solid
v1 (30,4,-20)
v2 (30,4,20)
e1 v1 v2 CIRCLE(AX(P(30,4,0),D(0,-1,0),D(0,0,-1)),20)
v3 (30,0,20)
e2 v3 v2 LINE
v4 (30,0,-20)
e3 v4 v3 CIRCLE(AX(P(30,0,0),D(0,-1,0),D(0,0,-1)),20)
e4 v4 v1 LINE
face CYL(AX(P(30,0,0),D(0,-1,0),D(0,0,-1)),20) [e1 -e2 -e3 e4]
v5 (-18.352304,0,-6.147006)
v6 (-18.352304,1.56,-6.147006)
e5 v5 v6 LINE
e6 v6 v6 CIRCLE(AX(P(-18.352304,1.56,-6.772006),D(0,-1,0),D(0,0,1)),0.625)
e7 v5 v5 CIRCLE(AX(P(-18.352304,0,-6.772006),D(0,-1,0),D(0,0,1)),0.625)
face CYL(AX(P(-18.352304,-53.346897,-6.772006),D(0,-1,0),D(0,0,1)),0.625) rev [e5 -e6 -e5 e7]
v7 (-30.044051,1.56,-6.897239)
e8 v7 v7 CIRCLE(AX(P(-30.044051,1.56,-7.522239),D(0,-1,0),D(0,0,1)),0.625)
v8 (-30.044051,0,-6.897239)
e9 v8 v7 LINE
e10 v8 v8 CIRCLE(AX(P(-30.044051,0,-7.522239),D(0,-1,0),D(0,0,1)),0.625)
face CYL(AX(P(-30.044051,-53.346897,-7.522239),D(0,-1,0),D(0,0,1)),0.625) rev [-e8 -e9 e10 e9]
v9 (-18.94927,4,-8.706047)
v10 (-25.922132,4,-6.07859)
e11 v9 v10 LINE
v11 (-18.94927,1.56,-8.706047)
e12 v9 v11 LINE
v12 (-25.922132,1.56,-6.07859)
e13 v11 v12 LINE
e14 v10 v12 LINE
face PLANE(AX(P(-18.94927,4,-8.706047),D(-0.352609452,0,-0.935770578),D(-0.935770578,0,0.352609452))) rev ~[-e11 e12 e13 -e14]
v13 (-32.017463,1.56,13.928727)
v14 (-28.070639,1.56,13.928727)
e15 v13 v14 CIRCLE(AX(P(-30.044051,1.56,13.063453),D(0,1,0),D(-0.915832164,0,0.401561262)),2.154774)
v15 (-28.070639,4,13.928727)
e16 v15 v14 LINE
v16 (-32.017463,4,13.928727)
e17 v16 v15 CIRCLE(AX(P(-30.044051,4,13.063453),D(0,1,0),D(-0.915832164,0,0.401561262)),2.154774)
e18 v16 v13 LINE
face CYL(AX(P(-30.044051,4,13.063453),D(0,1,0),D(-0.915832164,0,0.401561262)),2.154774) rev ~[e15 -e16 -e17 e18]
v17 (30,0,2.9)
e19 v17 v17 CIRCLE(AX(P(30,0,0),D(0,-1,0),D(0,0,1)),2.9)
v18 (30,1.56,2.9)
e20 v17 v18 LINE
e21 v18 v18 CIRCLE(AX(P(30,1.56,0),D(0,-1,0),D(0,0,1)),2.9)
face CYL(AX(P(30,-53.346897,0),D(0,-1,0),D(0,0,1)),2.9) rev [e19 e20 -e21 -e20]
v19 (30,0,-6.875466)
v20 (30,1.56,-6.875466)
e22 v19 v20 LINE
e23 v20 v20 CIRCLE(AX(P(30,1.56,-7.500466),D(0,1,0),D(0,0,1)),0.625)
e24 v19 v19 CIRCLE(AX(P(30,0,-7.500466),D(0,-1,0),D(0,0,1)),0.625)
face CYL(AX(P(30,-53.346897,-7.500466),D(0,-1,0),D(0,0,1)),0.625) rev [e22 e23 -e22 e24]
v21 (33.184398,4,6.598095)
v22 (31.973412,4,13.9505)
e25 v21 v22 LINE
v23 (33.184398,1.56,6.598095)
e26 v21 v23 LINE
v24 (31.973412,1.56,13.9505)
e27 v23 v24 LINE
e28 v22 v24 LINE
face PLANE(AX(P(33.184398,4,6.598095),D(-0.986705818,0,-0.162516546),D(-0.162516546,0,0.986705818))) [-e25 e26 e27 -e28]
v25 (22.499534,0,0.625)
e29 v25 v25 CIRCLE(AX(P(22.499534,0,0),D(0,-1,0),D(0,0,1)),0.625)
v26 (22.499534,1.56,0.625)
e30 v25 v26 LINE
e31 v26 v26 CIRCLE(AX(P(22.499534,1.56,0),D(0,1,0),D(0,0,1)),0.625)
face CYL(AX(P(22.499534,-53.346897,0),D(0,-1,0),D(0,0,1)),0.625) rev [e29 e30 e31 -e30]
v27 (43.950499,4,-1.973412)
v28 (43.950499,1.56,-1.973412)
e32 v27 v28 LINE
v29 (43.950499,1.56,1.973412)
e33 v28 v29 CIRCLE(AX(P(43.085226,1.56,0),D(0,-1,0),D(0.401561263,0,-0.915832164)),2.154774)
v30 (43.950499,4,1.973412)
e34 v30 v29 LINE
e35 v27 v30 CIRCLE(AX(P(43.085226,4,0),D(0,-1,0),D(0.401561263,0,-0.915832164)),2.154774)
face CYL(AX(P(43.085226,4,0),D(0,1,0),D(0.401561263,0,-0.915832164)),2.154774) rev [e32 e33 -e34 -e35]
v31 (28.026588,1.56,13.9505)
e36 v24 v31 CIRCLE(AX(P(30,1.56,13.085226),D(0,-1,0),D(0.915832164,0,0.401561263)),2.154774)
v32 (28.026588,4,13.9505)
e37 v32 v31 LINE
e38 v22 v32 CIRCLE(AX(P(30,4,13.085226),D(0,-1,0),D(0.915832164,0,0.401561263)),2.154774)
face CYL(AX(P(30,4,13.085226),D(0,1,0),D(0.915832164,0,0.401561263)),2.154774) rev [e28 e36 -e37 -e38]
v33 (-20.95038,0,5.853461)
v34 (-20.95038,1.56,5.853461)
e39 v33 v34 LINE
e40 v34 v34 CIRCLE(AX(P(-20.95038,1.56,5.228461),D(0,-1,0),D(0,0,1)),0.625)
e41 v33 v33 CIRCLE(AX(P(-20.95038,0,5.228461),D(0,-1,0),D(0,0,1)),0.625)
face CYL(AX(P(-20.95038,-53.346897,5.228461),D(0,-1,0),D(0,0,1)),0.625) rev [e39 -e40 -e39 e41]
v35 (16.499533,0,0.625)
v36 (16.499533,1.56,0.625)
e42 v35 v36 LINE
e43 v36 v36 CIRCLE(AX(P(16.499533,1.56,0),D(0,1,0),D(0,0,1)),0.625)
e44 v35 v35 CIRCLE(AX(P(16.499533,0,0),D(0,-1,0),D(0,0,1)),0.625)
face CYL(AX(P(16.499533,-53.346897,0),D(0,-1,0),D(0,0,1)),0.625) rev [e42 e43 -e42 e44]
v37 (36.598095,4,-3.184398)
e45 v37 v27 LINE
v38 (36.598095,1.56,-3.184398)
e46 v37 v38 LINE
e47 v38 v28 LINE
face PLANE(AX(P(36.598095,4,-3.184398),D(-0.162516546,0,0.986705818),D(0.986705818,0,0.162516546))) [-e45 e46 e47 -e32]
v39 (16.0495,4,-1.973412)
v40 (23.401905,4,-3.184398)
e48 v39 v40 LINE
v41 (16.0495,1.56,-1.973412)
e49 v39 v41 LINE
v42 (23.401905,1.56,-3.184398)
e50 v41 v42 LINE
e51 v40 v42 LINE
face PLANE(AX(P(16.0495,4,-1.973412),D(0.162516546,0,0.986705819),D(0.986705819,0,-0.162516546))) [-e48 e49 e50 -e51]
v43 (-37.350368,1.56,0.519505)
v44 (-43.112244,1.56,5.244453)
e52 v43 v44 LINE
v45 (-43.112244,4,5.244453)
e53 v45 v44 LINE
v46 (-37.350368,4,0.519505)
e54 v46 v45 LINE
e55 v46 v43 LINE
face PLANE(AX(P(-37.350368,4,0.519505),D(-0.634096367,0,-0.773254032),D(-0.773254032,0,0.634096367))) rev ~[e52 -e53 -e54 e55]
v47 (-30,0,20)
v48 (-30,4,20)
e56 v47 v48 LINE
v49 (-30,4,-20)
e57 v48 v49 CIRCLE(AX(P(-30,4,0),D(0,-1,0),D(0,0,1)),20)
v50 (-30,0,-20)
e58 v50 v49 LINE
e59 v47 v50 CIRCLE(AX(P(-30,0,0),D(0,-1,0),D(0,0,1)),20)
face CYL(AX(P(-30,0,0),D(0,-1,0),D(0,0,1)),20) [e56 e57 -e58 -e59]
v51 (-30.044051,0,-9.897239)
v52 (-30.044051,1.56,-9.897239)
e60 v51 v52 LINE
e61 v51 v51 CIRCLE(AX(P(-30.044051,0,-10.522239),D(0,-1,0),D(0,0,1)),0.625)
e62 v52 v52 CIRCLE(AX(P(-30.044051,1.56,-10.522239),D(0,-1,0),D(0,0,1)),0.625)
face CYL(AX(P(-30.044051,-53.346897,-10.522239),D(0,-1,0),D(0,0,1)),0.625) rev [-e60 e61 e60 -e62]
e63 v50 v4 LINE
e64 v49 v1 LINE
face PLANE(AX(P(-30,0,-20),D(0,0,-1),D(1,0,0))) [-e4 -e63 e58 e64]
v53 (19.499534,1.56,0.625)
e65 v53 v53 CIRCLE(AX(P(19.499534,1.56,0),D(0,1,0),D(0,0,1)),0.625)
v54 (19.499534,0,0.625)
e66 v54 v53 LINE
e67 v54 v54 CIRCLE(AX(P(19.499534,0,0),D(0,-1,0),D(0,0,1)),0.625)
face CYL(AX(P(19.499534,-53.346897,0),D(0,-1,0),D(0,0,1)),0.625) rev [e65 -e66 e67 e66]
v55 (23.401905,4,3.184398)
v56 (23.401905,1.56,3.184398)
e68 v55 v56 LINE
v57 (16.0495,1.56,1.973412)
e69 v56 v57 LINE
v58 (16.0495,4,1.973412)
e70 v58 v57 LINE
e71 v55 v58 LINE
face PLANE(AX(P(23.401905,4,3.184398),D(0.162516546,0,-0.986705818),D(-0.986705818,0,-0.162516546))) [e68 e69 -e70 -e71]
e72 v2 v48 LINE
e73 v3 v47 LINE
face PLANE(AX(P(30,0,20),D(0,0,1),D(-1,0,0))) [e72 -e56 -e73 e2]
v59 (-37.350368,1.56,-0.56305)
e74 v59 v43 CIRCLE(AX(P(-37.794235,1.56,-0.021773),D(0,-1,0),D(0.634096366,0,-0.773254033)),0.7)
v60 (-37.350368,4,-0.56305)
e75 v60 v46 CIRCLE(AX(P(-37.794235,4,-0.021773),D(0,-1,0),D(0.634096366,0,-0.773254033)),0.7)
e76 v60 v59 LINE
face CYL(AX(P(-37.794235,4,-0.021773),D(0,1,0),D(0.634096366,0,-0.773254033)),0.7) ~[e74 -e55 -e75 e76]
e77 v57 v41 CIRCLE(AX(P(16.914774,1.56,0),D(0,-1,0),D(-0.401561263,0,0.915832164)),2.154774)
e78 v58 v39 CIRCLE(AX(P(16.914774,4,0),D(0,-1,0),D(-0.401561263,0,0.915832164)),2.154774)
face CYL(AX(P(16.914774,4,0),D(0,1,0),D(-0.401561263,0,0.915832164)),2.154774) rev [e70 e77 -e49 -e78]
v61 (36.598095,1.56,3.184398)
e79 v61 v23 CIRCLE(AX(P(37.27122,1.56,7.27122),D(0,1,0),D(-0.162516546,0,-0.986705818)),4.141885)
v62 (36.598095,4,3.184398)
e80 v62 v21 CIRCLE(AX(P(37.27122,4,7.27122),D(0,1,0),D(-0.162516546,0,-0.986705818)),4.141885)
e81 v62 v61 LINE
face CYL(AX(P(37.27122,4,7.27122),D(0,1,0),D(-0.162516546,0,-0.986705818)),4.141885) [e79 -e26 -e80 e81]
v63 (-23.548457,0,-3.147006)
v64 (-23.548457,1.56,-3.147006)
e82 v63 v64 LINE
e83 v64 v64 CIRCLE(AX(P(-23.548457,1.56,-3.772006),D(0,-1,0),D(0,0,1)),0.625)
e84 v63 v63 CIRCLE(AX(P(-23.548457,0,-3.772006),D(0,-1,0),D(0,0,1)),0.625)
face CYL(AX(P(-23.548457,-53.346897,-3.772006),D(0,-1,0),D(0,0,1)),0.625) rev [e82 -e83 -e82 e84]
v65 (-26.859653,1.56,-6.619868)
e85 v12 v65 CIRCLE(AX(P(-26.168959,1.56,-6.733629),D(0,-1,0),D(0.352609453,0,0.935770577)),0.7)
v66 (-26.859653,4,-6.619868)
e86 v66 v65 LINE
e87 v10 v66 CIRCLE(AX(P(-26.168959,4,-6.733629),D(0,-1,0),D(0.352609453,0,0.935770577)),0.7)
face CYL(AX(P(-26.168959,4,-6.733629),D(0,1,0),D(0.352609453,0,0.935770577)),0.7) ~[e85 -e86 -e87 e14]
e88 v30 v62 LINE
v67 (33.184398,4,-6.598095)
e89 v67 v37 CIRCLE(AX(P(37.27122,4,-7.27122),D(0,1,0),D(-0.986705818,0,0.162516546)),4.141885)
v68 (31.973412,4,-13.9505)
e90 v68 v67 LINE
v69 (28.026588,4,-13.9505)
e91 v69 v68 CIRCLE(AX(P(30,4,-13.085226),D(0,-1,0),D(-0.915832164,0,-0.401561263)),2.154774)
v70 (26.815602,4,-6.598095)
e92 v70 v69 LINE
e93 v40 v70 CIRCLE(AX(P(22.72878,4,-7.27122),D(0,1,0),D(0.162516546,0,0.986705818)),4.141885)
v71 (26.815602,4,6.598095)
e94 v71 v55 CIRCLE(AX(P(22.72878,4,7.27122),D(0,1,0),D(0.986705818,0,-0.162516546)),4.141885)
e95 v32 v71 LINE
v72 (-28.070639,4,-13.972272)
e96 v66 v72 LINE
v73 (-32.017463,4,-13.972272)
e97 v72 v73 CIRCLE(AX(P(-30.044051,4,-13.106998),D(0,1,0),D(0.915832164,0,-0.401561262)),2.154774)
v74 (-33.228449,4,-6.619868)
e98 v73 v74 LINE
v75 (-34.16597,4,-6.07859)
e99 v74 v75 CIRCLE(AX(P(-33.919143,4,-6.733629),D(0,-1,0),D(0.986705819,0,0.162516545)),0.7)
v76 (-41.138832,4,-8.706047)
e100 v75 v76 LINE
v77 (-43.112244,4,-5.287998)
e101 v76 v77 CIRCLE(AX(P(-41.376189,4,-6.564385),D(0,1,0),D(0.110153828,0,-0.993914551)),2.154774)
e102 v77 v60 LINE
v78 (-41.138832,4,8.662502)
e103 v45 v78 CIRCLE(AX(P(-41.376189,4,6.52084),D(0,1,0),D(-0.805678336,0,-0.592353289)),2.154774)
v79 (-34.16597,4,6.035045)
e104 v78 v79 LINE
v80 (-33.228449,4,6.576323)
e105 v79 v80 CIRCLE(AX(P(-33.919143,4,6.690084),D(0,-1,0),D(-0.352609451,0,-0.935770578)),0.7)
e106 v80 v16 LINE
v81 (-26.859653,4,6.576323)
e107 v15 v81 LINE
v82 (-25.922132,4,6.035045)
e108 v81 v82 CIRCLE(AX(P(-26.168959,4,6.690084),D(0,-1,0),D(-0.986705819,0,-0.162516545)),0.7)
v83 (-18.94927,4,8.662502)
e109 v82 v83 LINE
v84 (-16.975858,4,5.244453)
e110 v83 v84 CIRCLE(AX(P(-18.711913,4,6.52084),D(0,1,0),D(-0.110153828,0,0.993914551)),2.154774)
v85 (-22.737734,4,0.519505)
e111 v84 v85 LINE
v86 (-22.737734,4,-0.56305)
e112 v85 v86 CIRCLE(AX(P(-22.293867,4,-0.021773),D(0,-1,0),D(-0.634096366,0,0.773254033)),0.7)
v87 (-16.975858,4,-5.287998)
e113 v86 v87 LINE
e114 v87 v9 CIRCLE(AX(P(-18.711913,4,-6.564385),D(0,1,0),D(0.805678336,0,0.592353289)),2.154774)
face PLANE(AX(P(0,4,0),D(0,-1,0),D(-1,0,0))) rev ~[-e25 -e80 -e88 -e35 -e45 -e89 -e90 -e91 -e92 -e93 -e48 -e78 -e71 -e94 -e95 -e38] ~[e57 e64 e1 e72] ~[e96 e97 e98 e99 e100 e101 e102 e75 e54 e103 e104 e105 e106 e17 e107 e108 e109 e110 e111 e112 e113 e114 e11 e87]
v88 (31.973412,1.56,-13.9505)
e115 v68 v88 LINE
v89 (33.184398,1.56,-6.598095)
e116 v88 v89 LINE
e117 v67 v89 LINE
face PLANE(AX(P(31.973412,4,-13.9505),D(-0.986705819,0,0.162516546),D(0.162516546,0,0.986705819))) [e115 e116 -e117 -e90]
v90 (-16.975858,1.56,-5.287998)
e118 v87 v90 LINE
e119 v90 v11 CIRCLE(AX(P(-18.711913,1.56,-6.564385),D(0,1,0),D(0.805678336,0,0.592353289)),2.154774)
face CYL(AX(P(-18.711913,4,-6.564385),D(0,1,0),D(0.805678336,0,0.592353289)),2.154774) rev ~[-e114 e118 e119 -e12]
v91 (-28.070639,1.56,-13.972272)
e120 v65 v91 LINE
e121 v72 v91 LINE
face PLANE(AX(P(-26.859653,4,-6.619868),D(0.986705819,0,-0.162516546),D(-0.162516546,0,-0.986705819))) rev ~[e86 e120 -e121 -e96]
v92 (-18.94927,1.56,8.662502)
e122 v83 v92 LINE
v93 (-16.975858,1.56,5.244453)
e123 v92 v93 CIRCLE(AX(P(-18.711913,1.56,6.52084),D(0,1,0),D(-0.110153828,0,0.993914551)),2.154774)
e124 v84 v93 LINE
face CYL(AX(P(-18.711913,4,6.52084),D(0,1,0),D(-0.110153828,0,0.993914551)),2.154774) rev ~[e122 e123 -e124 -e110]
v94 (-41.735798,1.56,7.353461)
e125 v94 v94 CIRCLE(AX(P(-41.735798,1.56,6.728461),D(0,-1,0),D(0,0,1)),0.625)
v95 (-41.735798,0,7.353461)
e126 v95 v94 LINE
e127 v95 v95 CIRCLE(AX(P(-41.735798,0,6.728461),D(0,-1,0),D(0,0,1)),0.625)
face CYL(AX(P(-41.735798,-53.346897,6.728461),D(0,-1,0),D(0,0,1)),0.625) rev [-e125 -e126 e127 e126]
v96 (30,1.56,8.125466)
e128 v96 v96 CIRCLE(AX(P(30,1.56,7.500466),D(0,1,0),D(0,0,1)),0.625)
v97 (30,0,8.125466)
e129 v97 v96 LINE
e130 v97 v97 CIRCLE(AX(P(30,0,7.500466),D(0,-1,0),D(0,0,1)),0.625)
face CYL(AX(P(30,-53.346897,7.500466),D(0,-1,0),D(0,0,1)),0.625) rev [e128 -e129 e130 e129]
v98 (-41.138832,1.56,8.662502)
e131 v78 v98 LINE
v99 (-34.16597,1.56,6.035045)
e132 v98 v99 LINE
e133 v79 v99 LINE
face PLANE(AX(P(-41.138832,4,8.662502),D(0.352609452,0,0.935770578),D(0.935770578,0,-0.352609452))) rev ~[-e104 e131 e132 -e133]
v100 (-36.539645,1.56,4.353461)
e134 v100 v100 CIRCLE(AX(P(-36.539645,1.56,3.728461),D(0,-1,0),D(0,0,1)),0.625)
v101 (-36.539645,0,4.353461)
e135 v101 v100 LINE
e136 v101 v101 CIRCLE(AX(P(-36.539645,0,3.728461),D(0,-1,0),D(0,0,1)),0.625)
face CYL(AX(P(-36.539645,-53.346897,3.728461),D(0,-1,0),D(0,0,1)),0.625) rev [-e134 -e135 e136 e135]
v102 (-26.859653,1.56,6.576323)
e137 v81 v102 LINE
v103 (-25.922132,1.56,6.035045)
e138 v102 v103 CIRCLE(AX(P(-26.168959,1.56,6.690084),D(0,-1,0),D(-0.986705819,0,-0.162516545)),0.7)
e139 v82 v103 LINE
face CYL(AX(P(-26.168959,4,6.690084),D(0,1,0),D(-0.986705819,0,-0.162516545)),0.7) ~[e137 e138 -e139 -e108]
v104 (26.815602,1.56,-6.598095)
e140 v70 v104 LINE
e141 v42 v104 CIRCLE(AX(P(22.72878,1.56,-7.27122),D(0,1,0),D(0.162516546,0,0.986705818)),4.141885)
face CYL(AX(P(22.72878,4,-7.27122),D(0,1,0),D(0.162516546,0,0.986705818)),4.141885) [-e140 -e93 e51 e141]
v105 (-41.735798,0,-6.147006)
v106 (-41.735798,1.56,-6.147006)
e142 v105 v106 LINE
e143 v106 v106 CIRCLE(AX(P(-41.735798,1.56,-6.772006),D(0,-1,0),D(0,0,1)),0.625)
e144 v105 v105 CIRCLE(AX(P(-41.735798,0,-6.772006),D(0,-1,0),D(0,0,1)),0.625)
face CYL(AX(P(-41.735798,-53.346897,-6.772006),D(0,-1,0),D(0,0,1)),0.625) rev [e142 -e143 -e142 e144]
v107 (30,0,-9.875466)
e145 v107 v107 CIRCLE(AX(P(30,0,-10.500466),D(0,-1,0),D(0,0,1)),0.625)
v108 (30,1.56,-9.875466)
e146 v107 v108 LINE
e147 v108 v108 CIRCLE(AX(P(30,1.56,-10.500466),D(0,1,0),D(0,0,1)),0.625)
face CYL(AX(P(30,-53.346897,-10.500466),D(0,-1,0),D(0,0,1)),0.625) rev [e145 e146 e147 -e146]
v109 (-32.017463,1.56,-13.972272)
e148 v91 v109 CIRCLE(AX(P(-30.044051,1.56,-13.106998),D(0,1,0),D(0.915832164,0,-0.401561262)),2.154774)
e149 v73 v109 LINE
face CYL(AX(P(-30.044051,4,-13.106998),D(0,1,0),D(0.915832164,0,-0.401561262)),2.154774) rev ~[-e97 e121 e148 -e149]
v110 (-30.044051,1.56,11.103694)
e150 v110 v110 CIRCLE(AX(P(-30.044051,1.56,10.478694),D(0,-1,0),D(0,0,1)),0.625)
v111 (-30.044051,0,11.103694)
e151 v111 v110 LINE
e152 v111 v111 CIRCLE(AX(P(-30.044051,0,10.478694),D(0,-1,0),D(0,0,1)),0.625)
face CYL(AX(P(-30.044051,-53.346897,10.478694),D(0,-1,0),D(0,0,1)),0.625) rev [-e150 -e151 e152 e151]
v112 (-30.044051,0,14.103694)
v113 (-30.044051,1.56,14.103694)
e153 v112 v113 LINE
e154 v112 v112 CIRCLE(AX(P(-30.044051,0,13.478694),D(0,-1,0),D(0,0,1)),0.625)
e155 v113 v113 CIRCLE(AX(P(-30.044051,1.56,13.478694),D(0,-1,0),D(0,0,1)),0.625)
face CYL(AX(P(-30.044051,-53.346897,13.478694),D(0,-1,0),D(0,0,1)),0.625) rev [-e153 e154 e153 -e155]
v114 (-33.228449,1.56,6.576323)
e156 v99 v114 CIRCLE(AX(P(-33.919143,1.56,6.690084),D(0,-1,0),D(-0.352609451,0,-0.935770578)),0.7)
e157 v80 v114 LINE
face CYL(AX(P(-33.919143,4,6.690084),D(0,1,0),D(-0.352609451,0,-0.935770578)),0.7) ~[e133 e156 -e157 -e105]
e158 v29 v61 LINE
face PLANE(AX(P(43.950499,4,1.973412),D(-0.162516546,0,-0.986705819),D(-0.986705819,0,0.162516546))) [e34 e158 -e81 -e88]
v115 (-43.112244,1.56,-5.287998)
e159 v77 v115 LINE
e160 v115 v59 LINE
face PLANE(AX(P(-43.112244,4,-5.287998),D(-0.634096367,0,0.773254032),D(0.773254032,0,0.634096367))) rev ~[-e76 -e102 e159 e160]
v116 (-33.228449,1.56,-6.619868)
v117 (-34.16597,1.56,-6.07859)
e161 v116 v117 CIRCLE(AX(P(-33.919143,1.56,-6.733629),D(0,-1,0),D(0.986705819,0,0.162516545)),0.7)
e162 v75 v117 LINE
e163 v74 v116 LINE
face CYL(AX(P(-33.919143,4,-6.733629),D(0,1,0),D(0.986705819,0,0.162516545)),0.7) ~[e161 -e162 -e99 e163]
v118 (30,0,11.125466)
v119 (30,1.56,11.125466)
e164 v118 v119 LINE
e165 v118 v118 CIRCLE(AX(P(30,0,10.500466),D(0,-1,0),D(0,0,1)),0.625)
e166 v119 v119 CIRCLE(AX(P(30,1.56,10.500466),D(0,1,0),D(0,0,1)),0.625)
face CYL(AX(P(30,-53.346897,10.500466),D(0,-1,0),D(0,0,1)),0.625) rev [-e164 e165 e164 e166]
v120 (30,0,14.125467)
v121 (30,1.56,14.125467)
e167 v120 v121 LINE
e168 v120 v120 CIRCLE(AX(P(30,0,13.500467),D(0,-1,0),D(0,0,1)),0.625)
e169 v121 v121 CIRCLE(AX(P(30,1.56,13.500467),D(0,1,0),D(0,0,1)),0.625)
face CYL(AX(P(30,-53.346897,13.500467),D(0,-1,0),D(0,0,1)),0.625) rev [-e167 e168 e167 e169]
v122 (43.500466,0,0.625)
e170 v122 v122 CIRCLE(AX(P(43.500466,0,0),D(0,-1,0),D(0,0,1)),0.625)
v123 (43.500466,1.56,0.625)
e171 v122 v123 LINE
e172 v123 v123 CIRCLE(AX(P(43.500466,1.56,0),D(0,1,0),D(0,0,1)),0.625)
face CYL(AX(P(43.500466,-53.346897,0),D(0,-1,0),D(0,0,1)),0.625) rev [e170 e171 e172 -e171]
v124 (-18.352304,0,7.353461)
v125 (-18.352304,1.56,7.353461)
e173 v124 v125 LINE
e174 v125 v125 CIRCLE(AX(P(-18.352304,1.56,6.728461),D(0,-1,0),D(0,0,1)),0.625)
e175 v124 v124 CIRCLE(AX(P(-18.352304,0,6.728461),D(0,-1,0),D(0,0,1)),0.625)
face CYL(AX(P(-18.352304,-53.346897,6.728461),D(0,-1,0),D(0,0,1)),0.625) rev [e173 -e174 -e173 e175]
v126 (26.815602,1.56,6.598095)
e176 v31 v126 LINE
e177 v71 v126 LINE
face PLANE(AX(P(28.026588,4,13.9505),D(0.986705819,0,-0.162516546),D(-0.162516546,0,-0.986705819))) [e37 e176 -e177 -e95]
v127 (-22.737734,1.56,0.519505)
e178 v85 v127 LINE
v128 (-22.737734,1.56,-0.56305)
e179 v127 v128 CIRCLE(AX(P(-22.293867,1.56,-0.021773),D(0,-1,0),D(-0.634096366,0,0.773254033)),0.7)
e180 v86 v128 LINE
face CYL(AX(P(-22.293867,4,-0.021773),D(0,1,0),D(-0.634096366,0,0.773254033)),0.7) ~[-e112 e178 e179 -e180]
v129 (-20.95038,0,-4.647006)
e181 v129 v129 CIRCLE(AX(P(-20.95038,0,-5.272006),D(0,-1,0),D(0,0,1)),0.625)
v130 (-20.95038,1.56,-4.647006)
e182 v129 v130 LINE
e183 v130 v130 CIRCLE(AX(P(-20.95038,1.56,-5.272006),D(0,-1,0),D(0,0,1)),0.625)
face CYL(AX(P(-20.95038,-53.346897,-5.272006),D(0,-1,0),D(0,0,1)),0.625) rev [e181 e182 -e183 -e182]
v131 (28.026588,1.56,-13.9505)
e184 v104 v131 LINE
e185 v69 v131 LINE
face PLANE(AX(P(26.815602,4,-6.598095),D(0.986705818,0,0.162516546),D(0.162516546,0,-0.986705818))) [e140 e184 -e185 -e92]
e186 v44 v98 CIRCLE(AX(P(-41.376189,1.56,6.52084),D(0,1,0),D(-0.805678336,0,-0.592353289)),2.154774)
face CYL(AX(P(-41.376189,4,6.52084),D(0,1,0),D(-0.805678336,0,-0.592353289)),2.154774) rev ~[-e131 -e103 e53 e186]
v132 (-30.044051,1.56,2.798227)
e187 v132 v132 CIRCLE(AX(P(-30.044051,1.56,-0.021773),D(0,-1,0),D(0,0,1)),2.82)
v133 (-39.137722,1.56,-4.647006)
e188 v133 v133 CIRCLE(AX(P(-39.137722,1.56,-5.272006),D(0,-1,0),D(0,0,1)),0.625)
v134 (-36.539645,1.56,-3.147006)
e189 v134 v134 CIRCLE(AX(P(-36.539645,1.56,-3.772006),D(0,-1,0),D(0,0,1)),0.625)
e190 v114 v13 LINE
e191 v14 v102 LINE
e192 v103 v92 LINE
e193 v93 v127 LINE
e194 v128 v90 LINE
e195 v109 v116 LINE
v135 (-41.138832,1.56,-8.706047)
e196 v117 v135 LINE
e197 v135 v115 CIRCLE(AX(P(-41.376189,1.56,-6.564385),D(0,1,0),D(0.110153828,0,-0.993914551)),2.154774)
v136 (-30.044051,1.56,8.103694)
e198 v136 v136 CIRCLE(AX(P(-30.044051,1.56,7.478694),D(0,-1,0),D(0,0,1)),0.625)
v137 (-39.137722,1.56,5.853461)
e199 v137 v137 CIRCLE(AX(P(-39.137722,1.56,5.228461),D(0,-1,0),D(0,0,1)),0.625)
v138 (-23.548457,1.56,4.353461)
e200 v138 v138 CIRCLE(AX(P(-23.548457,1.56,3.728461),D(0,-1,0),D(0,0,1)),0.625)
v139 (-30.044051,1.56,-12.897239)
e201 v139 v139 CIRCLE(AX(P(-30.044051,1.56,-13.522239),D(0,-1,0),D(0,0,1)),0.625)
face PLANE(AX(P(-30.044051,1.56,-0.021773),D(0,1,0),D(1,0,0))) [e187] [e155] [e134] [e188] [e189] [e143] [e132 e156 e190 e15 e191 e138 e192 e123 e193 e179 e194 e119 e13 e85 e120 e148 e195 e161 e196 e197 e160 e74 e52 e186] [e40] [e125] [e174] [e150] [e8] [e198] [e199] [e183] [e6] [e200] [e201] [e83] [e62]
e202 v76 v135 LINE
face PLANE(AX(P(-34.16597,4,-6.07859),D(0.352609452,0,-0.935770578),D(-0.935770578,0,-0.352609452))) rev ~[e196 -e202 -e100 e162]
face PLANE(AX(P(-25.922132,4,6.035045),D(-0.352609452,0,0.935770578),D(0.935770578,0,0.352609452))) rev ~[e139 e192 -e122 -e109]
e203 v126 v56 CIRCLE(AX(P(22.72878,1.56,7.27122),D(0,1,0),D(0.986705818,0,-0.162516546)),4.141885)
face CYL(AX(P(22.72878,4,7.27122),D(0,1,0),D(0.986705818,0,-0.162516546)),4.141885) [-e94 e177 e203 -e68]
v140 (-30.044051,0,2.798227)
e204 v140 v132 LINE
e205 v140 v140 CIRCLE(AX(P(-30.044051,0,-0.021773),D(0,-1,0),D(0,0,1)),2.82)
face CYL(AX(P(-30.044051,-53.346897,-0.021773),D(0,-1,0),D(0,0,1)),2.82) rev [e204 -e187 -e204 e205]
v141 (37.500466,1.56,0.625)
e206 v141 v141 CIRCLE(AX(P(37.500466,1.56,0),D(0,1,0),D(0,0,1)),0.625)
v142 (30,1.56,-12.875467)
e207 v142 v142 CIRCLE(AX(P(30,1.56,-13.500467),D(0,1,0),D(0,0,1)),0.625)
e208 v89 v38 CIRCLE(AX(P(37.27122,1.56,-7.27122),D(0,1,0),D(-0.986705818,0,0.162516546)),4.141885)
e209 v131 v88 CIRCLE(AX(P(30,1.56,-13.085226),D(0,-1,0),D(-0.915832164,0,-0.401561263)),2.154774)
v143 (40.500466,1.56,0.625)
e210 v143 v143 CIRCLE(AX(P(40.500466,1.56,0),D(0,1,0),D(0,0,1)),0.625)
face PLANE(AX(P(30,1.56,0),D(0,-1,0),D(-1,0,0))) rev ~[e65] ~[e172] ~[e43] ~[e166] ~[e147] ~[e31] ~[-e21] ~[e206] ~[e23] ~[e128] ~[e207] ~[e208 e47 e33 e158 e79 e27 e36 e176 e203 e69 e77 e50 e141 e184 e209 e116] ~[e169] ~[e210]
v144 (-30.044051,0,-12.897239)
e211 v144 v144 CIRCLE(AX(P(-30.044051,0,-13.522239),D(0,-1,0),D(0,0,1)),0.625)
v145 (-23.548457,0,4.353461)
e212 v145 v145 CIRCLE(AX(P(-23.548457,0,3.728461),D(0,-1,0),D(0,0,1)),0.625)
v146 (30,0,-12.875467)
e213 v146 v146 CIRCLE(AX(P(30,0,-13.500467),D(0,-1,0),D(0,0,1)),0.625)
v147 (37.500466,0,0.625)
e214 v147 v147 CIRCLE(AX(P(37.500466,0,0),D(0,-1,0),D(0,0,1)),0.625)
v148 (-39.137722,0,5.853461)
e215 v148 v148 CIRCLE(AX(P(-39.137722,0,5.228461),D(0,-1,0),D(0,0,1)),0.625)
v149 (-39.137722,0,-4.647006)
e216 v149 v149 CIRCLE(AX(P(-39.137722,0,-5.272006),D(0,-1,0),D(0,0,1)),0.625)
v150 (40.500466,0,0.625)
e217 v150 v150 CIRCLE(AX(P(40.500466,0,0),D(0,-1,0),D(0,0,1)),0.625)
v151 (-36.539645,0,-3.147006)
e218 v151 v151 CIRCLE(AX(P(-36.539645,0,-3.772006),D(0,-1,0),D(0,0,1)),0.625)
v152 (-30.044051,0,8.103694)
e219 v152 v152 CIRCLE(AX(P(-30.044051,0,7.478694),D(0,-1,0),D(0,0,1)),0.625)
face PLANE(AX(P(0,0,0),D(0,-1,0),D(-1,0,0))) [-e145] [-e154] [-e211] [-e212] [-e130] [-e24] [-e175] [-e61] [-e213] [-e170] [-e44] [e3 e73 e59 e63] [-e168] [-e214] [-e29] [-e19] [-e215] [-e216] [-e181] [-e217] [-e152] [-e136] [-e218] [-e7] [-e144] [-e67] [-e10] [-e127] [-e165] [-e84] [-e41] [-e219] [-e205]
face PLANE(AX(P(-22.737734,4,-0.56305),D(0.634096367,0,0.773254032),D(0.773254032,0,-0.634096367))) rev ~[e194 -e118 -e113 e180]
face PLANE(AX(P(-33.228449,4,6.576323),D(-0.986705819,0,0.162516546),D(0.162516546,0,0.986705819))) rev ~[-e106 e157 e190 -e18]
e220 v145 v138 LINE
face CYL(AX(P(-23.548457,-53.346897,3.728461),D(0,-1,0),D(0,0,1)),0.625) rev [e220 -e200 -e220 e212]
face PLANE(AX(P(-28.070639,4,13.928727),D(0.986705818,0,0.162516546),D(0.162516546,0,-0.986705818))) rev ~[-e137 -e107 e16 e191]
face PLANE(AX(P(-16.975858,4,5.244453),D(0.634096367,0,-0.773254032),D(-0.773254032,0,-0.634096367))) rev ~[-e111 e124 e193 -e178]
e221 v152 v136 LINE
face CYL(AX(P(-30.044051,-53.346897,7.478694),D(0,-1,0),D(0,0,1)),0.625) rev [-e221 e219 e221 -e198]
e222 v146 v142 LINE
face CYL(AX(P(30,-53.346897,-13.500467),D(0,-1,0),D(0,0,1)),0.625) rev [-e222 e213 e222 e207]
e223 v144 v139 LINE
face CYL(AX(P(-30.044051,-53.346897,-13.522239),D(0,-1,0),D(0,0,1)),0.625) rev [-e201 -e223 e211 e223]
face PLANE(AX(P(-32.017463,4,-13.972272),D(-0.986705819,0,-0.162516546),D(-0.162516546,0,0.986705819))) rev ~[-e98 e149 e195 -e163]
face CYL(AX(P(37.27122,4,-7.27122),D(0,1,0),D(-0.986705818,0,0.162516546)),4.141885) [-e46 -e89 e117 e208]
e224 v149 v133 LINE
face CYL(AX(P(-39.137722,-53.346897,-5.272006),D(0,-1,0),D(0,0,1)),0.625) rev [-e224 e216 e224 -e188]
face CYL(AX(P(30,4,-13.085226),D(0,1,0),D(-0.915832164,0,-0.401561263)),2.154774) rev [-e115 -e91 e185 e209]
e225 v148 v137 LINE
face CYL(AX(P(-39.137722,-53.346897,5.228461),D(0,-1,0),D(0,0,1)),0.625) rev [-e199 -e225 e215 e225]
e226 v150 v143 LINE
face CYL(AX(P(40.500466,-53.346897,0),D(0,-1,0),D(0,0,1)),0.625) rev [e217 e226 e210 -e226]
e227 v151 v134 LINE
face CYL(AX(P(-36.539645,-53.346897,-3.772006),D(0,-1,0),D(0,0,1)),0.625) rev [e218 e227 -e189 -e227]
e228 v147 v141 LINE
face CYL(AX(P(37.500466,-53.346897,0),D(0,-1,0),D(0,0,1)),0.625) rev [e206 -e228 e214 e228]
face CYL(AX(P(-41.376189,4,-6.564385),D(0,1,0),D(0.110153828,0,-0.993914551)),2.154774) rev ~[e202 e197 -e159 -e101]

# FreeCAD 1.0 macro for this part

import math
import FreeCAD as App
import Part
import Sketcher

V = App.Vector

doc = App.newDocument("Part")
params = doc.addObject("Spreadsheet::Sheet", "Params")
for row, (alias, value) in enumerate([
    ("sketch1_radius", "20 mm"),
    ("sketch1_width", "60 mm"),
    ("pad1_length", "4 mm"),
    ("sketch2_radius", "0.7 mm"),
    ("sketch2_radius2", "0.7 mm"),
    ("sketch2_radius3", "0.7 mm"),
    ("sketch2_radius4", "0.7 mm"),
    ("sketch2_radius5", "0.7 mm"),
    ("pocket1_length", "2.44 mm"),
    ("sketch3_diameter", "5.8 mm"),
    ("sketch3_diameter2", "1.25 mm"),
    ("sketch3_diameter3", "5.64 mm"),
], start=1):
    params.set(f"A{row}", alias)
    params.set(f"B{row}", "=" + value)
    params.setAlias(f"B{row}", alias)

body = doc.addObject("PartDesign::Body", "Body")

# Sketch on XZ plane
sketch1 = body.newObject("Sketcher::SketchObject", "Sketch")
sketch1.AttachmentSupport = (doc.getObject("XZ_Plane"), [""])
sketch1.MapMode = "FlatFace"
sketch1.addGeometry([
    Part.LineSegment(V(30, -20, 0), V(-30, -20, 0)),
    Part.ArcOfCircle(Part.Circle(V(-30, 0, 0), V(0, 0, 1), 20), math.radians(90), math.radians(270)),
    Part.LineSegment(V(-30, 20, 0), V(30, 20, 0)),
    Part.ArcOfCircle(Part.Circle(V(30, 0, 0), V(0, 0, 1), 20), math.radians(-90), math.radians(90)),
], False)
sketch1.addConstraint([
    Sketcher.Constraint("Tangent", 0, 2, 1, 2),
    Sketcher.Constraint("Tangent", 1, 1, 2, 1),
    Sketcher.Constraint("Tangent", 2, 2, 3, 2),
    Sketcher.Constraint("Tangent", 3, 1, 0, 1),
    Sketcher.Constraint("Horizontal", 0),
    Sketcher.Constraint("Horizontal", 2),
    Sketcher.Constraint("Symmetric", 1, 3, 3, 3, -1, 1),
    Sketcher.Constraint("Radius", 1, 20.0),
    Sketcher.Constraint("DistanceX", 0, 2, 0, 1, 60.0),
])
sketch1.setExpression("Constraints[7]", "Params.sketch1_radius")
sketch1.setExpression("Constraints[8]", "Params.sketch1_width")
pad1 = body.newObject("PartDesign::Pad", "Pad")
pad1.Profile = sketch1
pad1.setExpression("Length", "Params.pad1_length")
pad1.Reversed = True

# Sketch on XZ plane
sketch2 = body.newObject("Sketcher::SketchObject", "Sketch001")
sketch2.AttachmentSupport = (doc.getObject("XZ_Plane"), [""])
sketch2.MapMode = "FlatFace"
sketch2.AttachmentOffset = App.Placement(V(0, 0, -4), App.Rotation())
sketch2.addGeometry([
    Part.ArcOfCircle(Part.Circle(V(22.72878, -7.27122, 0), V(0, 0, 1), 4.141885), math.radians(9.352996), math.radians(80.647004)),  # 0
    Part.LineSegment(V(23.401905, -3.184398, 0), V(16.0495, -1.973412, 0)),  # 1
    Part.ArcOfCircle(Part.Circle(V(16.914774, 0, 0), V(0, 0, 1), 2.154774), math.radians(113.675817), math.radians(246.324183)),  # 2
    Part.LineSegment(V(16.0495, 1.973412, 0), V(23.401905, 3.184398, 0)),  # 3
    Part.ArcOfCircle(Part.Circle(V(22.72878, 7.27122, 0), V(0, 0, 1), 4.141885), math.radians(-80.647004), math.radians(-9.352996)),  # 4
    Part.LineSegment(V(26.815602, 6.598095, 0), V(28.026588, 13.9505, 0)),  # 5
    Part.ArcOfCircle(Part.Circle(V(30, 13.085226, 0), V(0, 0, 1), 2.154774), math.radians(23.675817), math.radians(156.324183)),  # 6
    Part.LineSegment(V(31.973412, 13.9505, 0), V(33.184398, 6.598095, 0)),  # 7
    Part.ArcOfCircle(Part.Circle(V(37.27122, 7.27122, 0), V(0, 0, 1), 4.141885), math.radians(-170.647004), math.radians(-99.352996)),  # 8
    Part.LineSegment(V(36.598095, 3.184398, 0), V(43.950499, 1.973412, 0)),  # 9
    Part.ArcOfCircle(Part.Circle(V(43.085226, 0, 0), V(0, 0, 1), 2.154774), math.radians(-66.324183), math.radians(66.324183)),  # 10
    Part.LineSegment(V(43.950499, -1.973412, 0), V(36.598095, -3.184398, 0)),  # 11
    Part.ArcOfCircle(Part.Circle(V(37.27122, -7.27122, 0), V(0, 0, 1), 4.141885), math.radians(99.352996), math.radians(170.647004)),  # 12
    Part.LineSegment(V(33.184398, -6.598095, 0), V(31.973412, -13.9505, 0)),  # 13
    Part.ArcOfCircle(Part.Circle(V(30, -13.085226, 0), V(0, 0, 1), 2.154774), math.radians(-156.324183), math.radians(-23.675817)),  # 14
    Part.LineSegment(V(28.026588, -13.9505, 0), V(26.815602, -6.598095, 0)),  # 15
    Part.Circle(V(30, 13.500467, 0), V(0, 0, 1), 0.625),  # 16
    Part.Circle(V(30, 10.500466, 0), V(0, 0, 1), 0.625),  # 17
    Part.Circle(V(30, 7.500466, 0), V(0, 0, 1), 0.625),  # 18
    Part.Circle(V(43.500466, 0, 0), V(0, 0, 1), 0.625),  # 19
    Part.Circle(V(40.500466, 0, 0), V(0, 0, 1), 0.625),  # 20
    Part.Circle(V(37.500466, 0, 0), V(0, 0, 1), 0.625),  # 21
    Part.Circle(V(22.499534, 0, 0), V(0, 0, 1), 0.625),  # 22
    Part.Circle(V(19.499534, 0, 0), V(0, 0, 1), 0.625),  # 23
    Part.Circle(V(16.499533, 0, 0), V(0, 0, 1), 0.625),  # 24
    Part.Circle(V(30, -7.500466, 0), V(0, 0, 1), 0.625),  # 25
    Part.Circle(V(30, -10.500466, 0), V(0, 0, 1), 0.625),  # 26
    Part.Circle(V(30, -13.500467, 0), V(0, 0, 1), 0.625),  # 27
    Part.LineSegment(V(-26.859653, -6.619868, 0), V(-28.070639, -13.972272, 0)),  # 28
    Part.ArcOfCircle(Part.Circle(V(-30.044051, -13.106998, 0), V(0, 0, 1), 2.154774), math.radians(-156.324183), math.radians(-23.675817)),  # 29
    Part.LineSegment(V(-32.017463, -13.972272, 0), V(-33.228449, -6.619868, 0)),  # 30
    Part.ArcOfCircle(Part.Circle(V(-33.919143, -6.733629, 0), V(0, 0, 1), 0.7), math.radians(9.352996), math.radians(110.647004)),  # 31
    Part.LineSegment(V(-34.16597, -6.07859, 0), V(-41.138832, -8.706047, 0)),  # 32
    Part.ArcOfCircle(Part.Circle(V(-41.376189, -6.564385, 0), V(0, 0, 1), 2.154774), math.radians(143.675817), math.radians(276.324183)),  # 33
    Part.LineSegment(V(-43.112244, -5.287998, 0), V(-37.350368, -0.56305, 0)),  # 34
    Part.ArcOfCircle(Part.Circle(V(-37.794235, -0.021773, 0), V(0, 0, 1), 0.7), math.radians(-50.647004), math.radians(50.647004)),  # 35
    Part.LineSegment(V(-37.350368, 0.519505, 0), V(-43.112244, 5.244453, 0)),  # 36
    Part.ArcOfCircle(Part.Circle(V(-41.376189, 6.52084, 0), V(0, 0, 1), 2.154774), math.radians(83.675817), math.radians(216.324183)),  # 37
    Part.LineSegment(V(-41.138832, 8.662502, 0), V(-34.16597, 6.035045, 0)),  # 38
    Part.ArcOfCircle(Part.Circle(V(-33.919143, 6.690084, 0), V(0, 0, 1), 0.7), math.radians(-110.647004), math.radians(-9.352996)),  # 39
    Part.LineSegment(V(-33.228449, 6.576323, 0), V(-32.017463, 13.928727, 0)),  # 40
    Part.ArcOfCircle(Part.Circle(V(-30.044051, 13.063453, 0), V(0, 0, 1), 2.154774), math.radians(23.675817), math.radians(156.324183)),  # 41
    Part.LineSegment(V(-28.070639, 13.928727, 0), V(-26.859653, 6.576323, 0)),  # 42
    Part.ArcOfCircle(Part.Circle(V(-26.168959, 6.690084, 0), V(0, 0, 1), 0.7), math.radians(-170.647004), math.radians(-69.352996)),  # 43
    Part.LineSegment(V(-25.922132, 6.035045, 0), V(-18.94927, 8.662502, 0)),  # 44
    Part.ArcOfCircle(Part.Circle(V(-18.711913, 6.52084, 0), V(0, 0, 1), 2.154774), math.radians(-36.324183), math.radians(96.324183)),  # 45
    Part.LineSegment(V(-16.975858, 5.244453, 0), V(-22.737734, 0.519505, 0)),  # 46
    Part.ArcOfCircle(Part.Circle(V(-22.293867, -0.021773, 0), V(0, 0, 1), 0.7), math.radians(129.352996), math.radians(230.647004)),  # 47
    Part.LineSegment(V(-22.737734, -0.56305, 0), V(-16.975858, -5.287998, 0)),  # 48
    Part.ArcOfCircle(Part.Circle(V(-18.711913, -6.564385, 0), V(0, 0, 1), 2.154774), math.radians(-96.324183), math.radians(36.324183)),  # 49
    Part.LineSegment(V(-18.94927, -8.706047, 0), V(-25.922132, -6.07859, 0)),  # 50
    Part.ArcOfCircle(Part.Circle(V(-26.168959, -6.733629, 0), V(0, 0, 1), 0.7), math.radians(69.352996), math.radians(170.647004)),  # 51
], False)
sketch2.addConstraint([
    Sketcher.Constraint("Coincident", 0, 2, 1, 1),
    Sketcher.Constraint("Coincident", 1, 2, 2, 2),
    Sketcher.Constraint("Coincident", 2, 1, 3, 1),
    Sketcher.Constraint("Coincident", 3, 2, 4, 1),
    Sketcher.Constraint("Coincident", 4, 2, 5, 1),
    Sketcher.Constraint("Coincident", 5, 2, 6, 2),
    Sketcher.Constraint("Coincident", 6, 1, 7, 1),
    Sketcher.Constraint("Coincident", 7, 2, 8, 1),
    Sketcher.Constraint("Coincident", 8, 2, 9, 1),
    Sketcher.Constraint("Coincident", 9, 2, 10, 2),
    Sketcher.Constraint("Coincident", 10, 1, 11, 1),
    Sketcher.Constraint("Coincident", 11, 2, 12, 1),
    Sketcher.Constraint("Coincident", 12, 2, 13, 1),
    Sketcher.Constraint("Coincident", 13, 2, 14, 2),
    Sketcher.Constraint("Coincident", 14, 1, 15, 1),
    Sketcher.Constraint("Coincident", 15, 2, 0, 1),
    Sketcher.Constraint("Coincident", 28, 2, 29, 2),
    Sketcher.Constraint("Coincident", 29, 1, 30, 1),
    Sketcher.Constraint("Coincident", 30, 2, 31, 1),
    Sketcher.Constraint("Coincident", 31, 2, 32, 1),
    Sketcher.Constraint("Coincident", 32, 2, 33, 2),
    Sketcher.Constraint("Coincident", 33, 1, 34, 1),
    Sketcher.Constraint("Coincident", 34, 2, 35, 1),
    Sketcher.Constraint("Coincident", 35, 2, 36, 1),
    Sketcher.Constraint("Coincident", 36, 2, 37, 2),
    Sketcher.Constraint("Coincident", 37, 1, 38, 1),
    Sketcher.Constraint("Coincident", 38, 2, 39, 1),
    Sketcher.Constraint("Coincident", 39, 2, 40, 1),
    Sketcher.Constraint("Coincident", 40, 2, 41, 2),
    Sketcher.Constraint("Coincident", 41, 1, 42, 1),
    Sketcher.Constraint("Coincident", 42, 2, 43, 1),
    Sketcher.Constraint("Coincident", 43, 2, 44, 1),
    Sketcher.Constraint("Coincident", 44, 2, 45, 2),
    Sketcher.Constraint("Coincident", 45, 1, 46, 1),
    Sketcher.Constraint("Coincident", 46, 2, 47, 1),
    Sketcher.Constraint("Coincident", 47, 2, 48, 1),
    Sketcher.Constraint("Coincident", 48, 2, 49, 2),
    Sketcher.Constraint("Coincident", 49, 1, 50, 1),
    Sketcher.Constraint("Coincident", 50, 2, 51, 1),
    Sketcher.Constraint("Coincident", 51, 2, 28, 1),
    Sketcher.Constraint("PointOnObject", 2, 3, -1),
    Sketcher.Constraint("PointOnObject", 10, 3, -1),
    Sketcher.Constraint("PointOnObject", 19, 3, -1),
    Sketcher.Constraint("PointOnObject", 20, 3, -1),
    Sketcher.Constraint("PointOnObject", 21, 3, -1),
    Sketcher.Constraint("PointOnObject", 22, 3, -1),
    Sketcher.Constraint("PointOnObject", 23, 3, -1),
    Sketcher.Constraint("PointOnObject", 24, 3, -1),
    Sketcher.Constraint("Radius", 31, 0.7),
    Sketcher.Constraint("Radius", 35, 0.7),
    Sketcher.Constraint("Radius", 39, 0.7),
    Sketcher.Constraint("Radius", 43, 0.7),
    Sketcher.Constraint("Radius", 47, 0.7),
    Sketcher.Constraint("Radius", 51, 0.7),
    Sketcher.Constraint("Diameter", 16, 1.25),
    Sketcher.Constraint("Diameter", 17, 1.25),
    Sketcher.Constraint("Diameter", 18, 1.25),
    Sketcher.Constraint("Diameter", 19, 1.25),
    Sketcher.Constraint("Diameter", 20, 1.25),
    Sketcher.Constraint("Diameter", 21, 1.25),
    Sketcher.Constraint("Diameter", 22, 1.25),
    Sketcher.Constraint("Diameter", 23, 1.25),
    Sketcher.Constraint("Diameter", 24, 1.25),
    Sketcher.Constraint("Diameter", 25, 1.25),
    Sketcher.Constraint("Diameter", 26, 1.25),
    Sketcher.Constraint("Diameter", 27, 1.25),
    Sketcher.Constraint("DistanceX", -1, 1, 6, 3, 30.0),
    Sketcher.Constraint("DistanceX", -1, 1, 14, 3, 30.0),
    Sketcher.Constraint("DistanceX", -1, 1, 16, 3, 30.0),
    Sketcher.Constraint("DistanceX", -1, 1, 17, 3, 30.0),
    Sketcher.Constraint("DistanceX", -1, 1, 18, 3, 30.0),
    Sketcher.Constraint("DistanceX", -1, 1, 25, 3, 30.0),
    Sketcher.Constraint("DistanceX", -1, 1, 26, 3, 30.0),
    Sketcher.Constraint("DistanceX", -1, 1, 27, 3, 30.0),
    Sketcher.Constraint("DistanceY", 29, 3, -1, 1, 13.106998),
    Sketcher.Constraint("Radius", 0, 4.141885),
    Sketcher.Constraint("Radius", 2, 2.154774),
    Sketcher.Constraint("Radius", 4, 4.141885),
    Sketcher.Constraint("Radius", 6, 2.154774),
    Sketcher.Constraint("Radius", 8, 4.141885),
    Sketcher.Constraint("Radius", 10, 2.154774),
    Sketcher.Constraint("Radius", 12, 4.141885),
    Sketcher.Constraint("Radius", 14, 2.154774),
    Sketcher.Constraint("Radius", 29, 2.154774),
    Sketcher.Constraint("Radius", 33, 2.154774),
    Sketcher.Constraint("Radius", 37, 2.154774),
    Sketcher.Constraint("Radius", 41, 2.154774),
    Sketcher.Constraint("Radius", 45, 2.154774),
    Sketcher.Constraint("Radius", 49, 2.154774),
    Sketcher.Constraint("DistanceY", 0, 2, -1, 1, 3.184398),
    Sketcher.Constraint("DistanceX", -1, 1, 1, 2, 16.0495),
    Sketcher.Constraint("DistanceX", -1, 1, 2, 1, 16.0495),
    Sketcher.Constraint("DistanceY", -1, 1, 3, 2, 3.184398),
    Sketcher.Constraint("DistanceX", -1, 1, 4, 2, 26.815602),
    Sketcher.Constraint("DistanceY", -1, 1, 5, 2, 13.9505),
    Sketcher.Constraint("DistanceY", -1, 1, 6, 1, 13.9505),
    Sketcher.Constraint("DistanceX", -1, 1, 7, 2, 33.184398),
    Sketcher.Constraint("DistanceY", -1, 1, 8, 2, 3.184398),
    Sketcher.Constraint("DistanceX", -1, 1, 9, 2, 43.950499),
    Sketcher.Constraint("DistanceX", -1, 1, 10, 1, 43.950499),
    Sketcher.Constraint("DistanceY", 11, 2, -1, 1, 3.184398),
    Sketcher.Constraint("DistanceX", -1, 1, 12, 2, 33.184398),
    Sketcher.Constraint("DistanceY", 13, 2, -1, 1, 13.9505),
    Sketcher.Constraint("DistanceY", 14, 1, -1, 1, 13.9505),
    Sketcher.Constraint("DistanceX", -1, 1, 15, 2, 26.815602),
    Sketcher.Constraint("DistanceY", -1, 1, 37, 1, 8.662502),
    Sketcher.Constraint("DistanceY", -1, 1, 44, 2, 8.662502),
    Sketcher.Constraint("DistanceX", -1, 1, 0, 3, 22.72878),
    Sketcher.Constraint("DistanceY", 0, 3, -1, 1, 7.27122),
    Sketcher.Constraint("DistanceX", -1, 1, 4, 3, 22.72878),
    Sketcher.Constraint("DistanceY", -1, 1, 4, 3, 7.27122),
    Sketcher.Constraint("DistanceX", -1, 1, 8, 3, 37.27122),
    Sketcher.Constraint("DistanceY", -1, 1, 8, 3, 7.27122),
    Sketcher.Constraint("DistanceX", -1, 1, 12, 3, 37.27122),
    Sketcher.Constraint("DistanceY", 12, 3, -1, 1, 7.27122),
    Sketcher.Constraint("DistanceX", 29, 3, -1, 1, 30.044051),
    Sketcher.Constraint("DistanceY", 31, 3, -1, 1, 6.733629),
    Sketcher.Constraint("DistanceX", 33, 3, -1, 1, 41.376189),
    Sketcher.Constraint("DistanceX", 37, 3, -1, 1, 41.376189),
    Sketcher.Constraint("DistanceY", -1, 1, 37, 3, 6.52084),
    Sketcher.Constraint("DistanceX", 41, 3, -1, 1, 30.044051),
    Sketcher.Constraint("DistanceX", 43, 3, -1, 1, 26.168959),
    Sketcher.Constraint("DistanceY", -1, 1, 45, 3, 6.52084),
    Sketcher.Constraint("DistanceX", 51, 3, -1, 1, 26.168959),
    Sketcher.Constraint("DistanceY", 51, 3, -1, 1, 6.733629),
    Sketcher.Constraint("DistanceY", 1, 2, -1, 1, 1.973412),
    Sketcher.Constraint("DistanceX", -1, 1, 5, 2, 28.026588),
    Sketcher.Constraint("DistanceY", -1, 1, 9, 2, 1.973412),
    Sketcher.Constraint("DistanceX", -1, 1, 13, 2, 31.973412),
    Sketcher.Constraint("DistanceX", 28, 2, -1, 1, 28.070639),
    Sketcher.Constraint("DistanceX", 30, 2, -1, 1, 33.228449),
    Sketcher.Constraint("DistanceX", 31, 2, -1, 1, 34.16597),
    Sketcher.Constraint("DistanceY", 31, 2, -1, 1, 6.07859),
    Sketcher.Constraint("DistanceX", 34, 2, -1, 1, 37.350368),
    Sketcher.Constraint("DistanceY", 34, 2, -1, 1, 0.56305),
    Sketcher.Constraint("DistanceX", 35, 2, -1, 1, 37.350368),
    Sketcher.Constraint("DistanceX", 38, 2, -1, 1, 34.16597),
    Sketcher.Constraint("DistanceX", 39, 2, -1, 1, 33.228449),
    Sketcher.Constraint("DistanceX", 41, 1, -1, 1, 28.070639),
    Sketcher.Constraint("DistanceX", 44, 2, -1, 1, 18.94927),
    Sketcher.Constraint("DistanceX", 45, 1, -1, 1, 16.975858),
    Sketcher.Constraint("DistanceY", 47, 2, -1, 1, 0.56305),
    Sketcher.Constraint("DistanceX", 48, 2, -1, 1, 16.975858),
    Sketcher.Constraint("DistanceX", 49, 1, -1, 1, 18.94927),
    Sketcher.Constraint("DistanceY", 50, 2, -1, 1, 6.07859),
    Sketcher.Constraint("Distance", 28, 7.451466),
    Sketcher.Constraint("Distance", 30, 7.451466),
    Sketcher.Constraint("Distance", 32, 7.451466),
    Sketcher.Constraint("Distance", 34, 7.451466),
    Sketcher.Constraint("Distance", 36, 7.451466),
    Sketcher.Constraint("Distance", 38, 7.451466),
    Sketcher.Constraint("Distance", 40, 7.451466),
    Sketcher.Constraint("Distance", 42, 7.451466),
    Sketcher.Constraint("Distance", 44, 7.451466),
    Sketcher.Constraint("Distance", 46, 7.451466),
    Sketcher.Constraint("Distance", 48, 7.451466),
    Sketcher.Constraint("Distance", 50, 7.451466),
    Sketcher.Constraint("DistanceY", -1, 1, 16, 3, 13.500467),
    Sketcher.Constraint("DistanceY", -1, 1, 17, 3, 10.500466),
    Sketcher.Constraint("DistanceY", -1, 1, 18, 3, 7.500466),
    Sketcher.Constraint("DistanceX", -1, 1, 19, 3, 43.500466),
    Sketcher.Constraint("DistanceX", -1, 1, 20, 3, 40.500466),
    Sketcher.Constraint("DistanceX", -1, 1, 21, 3, 37.500466),
    Sketcher.Constraint("DistanceX", -1, 1, 22, 3, 22.499534),
    Sketcher.Constraint("DistanceX", -1, 1, 23, 3, 19.499534),
    Sketcher.Constraint("DistanceX", -1, 1, 24, 3, 16.499533),
    Sketcher.Constraint("DistanceY", 25, 3, -1, 1, 7.500466),
    Sketcher.Constraint("DistanceY", 26, 3, -1, 1, 10.500466),
    Sketcher.Constraint("DistanceY", 27, 3, -1, 1, 13.500467),
    Sketcher.Constraint("DistanceY", 33, 3, -1, 1, 6.564385),
    Sketcher.Constraint("DistanceX", 35, 3, -1, 1, 37.794235),
    Sketcher.Constraint("DistanceX", 39, 3, -1, 1, 33.919143),
    Sketcher.Constraint("DistanceY", -1, 1, 41, 3, 13.063453),
    Sketcher.Constraint("DistanceY", -1, 1, 43, 3, 6.690084),
    Sketcher.Constraint("DistanceX", 47, 3, -1, 1, 22.293867),
    Sketcher.Constraint("DistanceY", 47, 3, -1, 1, 0.021773),
])
sketch2.setExpression("Constraints[48]", "Params.sketch2_radius")
sketch2.setExpression("Constraints[49]", "Params.sketch2_radius2")
sketch2.setExpression("Constraints[50]", "Params.sketch2_radius3")
sketch2.setExpression("Constraints[51]", "Params.sketch2_radius4")
sketch2.setExpression("Constraints[52]", "Params.sketch2_radius5")
pocket1 = body.newObject("PartDesign::Pocket", "Pocket")
pocket1.Profile = sketch2
pocket1.setExpression("Length", "Params.pocket1_length")
pocket1.Reversed = True

# Sketch on XZ plane
sketch3 = body.newObject("Sketcher::SketchObject", "Sketch002")
sketch3.AttachmentSupport = (doc.getObject("XZ_Plane"), [""])
sketch3.MapMode = "FlatFace"
sketch3.AttachmentOffset = App.Placement(V(0, 0, -1.56), App.Rotation())
sketch3.addGeometry([
    Part.Circle(V(-30, -13.5, 0), V(0, 0, 1), 0.6),  # 0
    Part.Circle(V(-30, -10.5, 0), V(0, 0, 1), 0.6),  # 1
    Part.Circle(V(-30, -7.5, 0), V(0, 0, 1), 0.6),  # 2
    Part.Circle(V(-23.5, -3.8, 0), V(0, 0, 1), 0.6),  # 3
    Part.Circle(V(-21, -5.3, 0), V(0, 0, 1), 0.6),  # 4
    Part.Circle(V(-18.4, -6.8, 0), V(0, 0, 1), 0.6),  # 5
    Part.Circle(V(-23.5, 3.7, 0), V(0, 0, 1), 0.6),  # 6
    Part.Circle(V(-21, 5.2, 0), V(0, 0, 1), 0.6),  # 7
    Part.Circle(V(-18.4, 6.7, 0), V(0, 0, 1), 0.6),  # 8
    Part.Circle(V(-30, 7.5, 0), V(0, 0, 1), 0.6),  # 9
    Part.Circle(V(-30, 10.5, 0), V(0, 0, 1), 0.6),  # 10
    Part.Circle(V(-30, 13.5, 0), V(0, 0, 1), 0.6),  # 11
    Part.Circle(V(-36.5, 3.7, 0), V(0, 0, 1), 0.6),  # 12
    Part.Circle(V(-39.1, 5.2, 0), V(0, 0, 1), 0.6),  # 13
    Part.Circle(V(-41.7, 6.7, 0), V(0, 0, 1), 0.6),  # 14
    Part.Circle(V(-36.5, -3.8, 0), V(0, 0, 1), 0.6),  # 15
    Part.Circle(V(-39.1, -5.3, 0), V(0, 0, 1), 0.6),  # 16
    Part.Circle(V(-41.7, -6.8, 0), V(0, 0, 1), 0.6),  # 17
    Part.Circle(V(-30, 0, 0), V(0, 0, 1), 2.8),  # 18
    Part.Circle(V(30, 0, 0), V(0, 0, 1), 2.9),  # 19
    Part.Circle(V(30, -7.5, 0), V(0, 0, 1), 0.6),  # 20
    Part.Circle(V(30, -10.5, 0), V(0, 0, 1), 0.6),  # 21
    Part.Circle(V(30, -13.5, 0), V(0, 0, 1), 0.6),  # 22
    Part.Circle(V(16.5, 0, 0), V(0, 0, 1), 0.6),  # 23
    Part.Circle(V(19.5, 0, 0), V(0, 0, 1), 0.6),  # 24
    Part.Circle(V(22.5, 0, 0), V(0, 0, 1), 0.6),  # 25
    Part.Circle(V(30, 13.5, 0), V(0, 0, 1), 0.6),  # 26
    Part.Circle(V(30, 10.5, 0), V(0, 0, 1), 0.6),  # 27
    Part.Circle(V(30, 7.5, 0), V(0, 0, 1), 0.6),  # 28
    Part.Circle(V(43.5, 0, 0), V(0, 0, 1), 0.6),  # 29
    Part.Circle(V(40.5, 0, 0), V(0, 0, 1), 0.6),  # 30
    Part.Circle(V(37.5, 0, 0), V(0, 0, 1), 0.6),  # 31
], False)
sketch3.addConstraint([
    Sketcher.Constraint("Equal", 0, 1),
    Sketcher.Constraint("Equal", 1, 2),
    Sketcher.Constraint("Equal", 2, 3),
    Sketcher.Constraint("Equal", 3, 4),
    Sketcher.Constraint("Equal", 4, 5),
    Sketcher.Constraint("Equal", 5, 6),
    Sketcher.Constraint("Equal", 6, 7),
    Sketcher.Constraint("Equal", 7, 8),
    Sketcher.Constraint("Equal", 8, 9),
    Sketcher.Constraint("Equal", 9, 10),
    Sketcher.Constraint("Equal", 10, 11),
    Sketcher.Constraint("Equal", 11, 12),
    Sketcher.Constraint("Equal", 12, 13),
    Sketcher.Constraint("Equal", 13, 14),
    Sketcher.Constraint("Equal", 14, 15),
    Sketcher.Constraint("Equal", 15, 16),
    Sketcher.Constraint("Equal", 16, 17),
    Sketcher.Constraint("Equal", 17, 20),
    Sketcher.Constraint("Equal", 20, 21),
    Sketcher.Constraint("Equal", 21, 22),
    Sketcher.Constraint("Equal", 22, 23),
    Sketcher.Constraint("Equal", 23, 24),
    Sketcher.Constraint("Equal", 24, 25),
    Sketcher.Constraint("Equal", 25, 26),
    Sketcher.Constraint("Equal", 26, 27),
    Sketcher.Constraint("Equal", 27, 28),
    Sketcher.Constraint("Equal", 28, 29),
    Sketcher.Constraint("Equal", 29, 30),
    Sketcher.Constraint("Equal", 30, 31),
    Sketcher.Constraint("Symmetric", 22, 3, 26, 3, -1),
    Sketcher.Constraint("Symmetric", 21, 3, 27, 3, -1),
    Sketcher.Constraint("Symmetric", 20, 3, 28, 3, -1),
    Sketcher.Constraint("PointOnObject", 19, 3, -1),
    Sketcher.Constraint("PointOnObject", 23, 3, -1),
    Sketcher.Constraint("PointOnObject", 24, 3, -1),
    Sketcher.Constraint("PointOnObject", 25, 3, -1),
    Sketcher.Constraint("PointOnObject", 29, 3, -1),
    Sketcher.Constraint("PointOnObject", 30, 3, -1),
    Sketcher.Constraint("PointOnObject", 31, 3, -1),
    Sketcher.Constraint("Horizontal", 6, 3, 12, 3),
    Sketcher.Constraint("Horizontal", 7, 3, 13, 3),
    Sketcher.Constraint("Horizontal", 8, 3, 14, 3),
    Sketcher.Constraint("Horizontal", 3, 3, 15, 3),
    Sketcher.Constraint("Horizontal", 4, 3, 16, 3),
    Sketcher.Constraint("Horizontal", 5, 3, 17, 3),
    Sketcher.Constraint("Vertical", 0, 3, 1, 3),
    Sketcher.Constraint("Vertical", 1, 3, 2, 3),
    Sketcher.Constraint("Vertical", 3, 3, 6, 3),
    Sketcher.Constraint("Vertical", 4, 3, 7, 3),
    Sketcher.Constraint("Vertical", 5, 3, 8, 3),
    Sketcher.Constraint("Vertical", 2, 3, 9, 3),
    Sketcher.Constraint("Vertical", 9, 3, 10, 3),
    Sketcher.Constraint("Vertical", 10, 3, 11, 3),
    Sketcher.Constraint("Vertical", 12, 3, 15, 3),
    Sketcher.Constraint("Vertical", 13, 3, 16, 3),
    Sketcher.Constraint("Vertical", 14, 3, 17, 3),
    Sketcher.Constraint("Vertical", 11, 3, 18, 3),
    Sketcher.Constraint("Vertical", 19, 3, 20, 3),
    Sketcher.Constraint("Vertical", 20, 3, 21, 3),
    Sketcher.Constraint("Vertical", 21, 3, 22, 3),
    Sketcher.Constraint("Diameter", 19, 5.8),
    Sketcher.Constraint("Diameter", 0, 1.25),
    Sketcher.Constraint("Diameter", 18, 5.64),
    Sketcher.Constraint("DistanceX", -1, 1, 19, 3, 30.0),
    Sketcher.Constraint("DistanceY", 0, 3, 1, 3, 3.0),
    Sketcher.Constraint("DistanceY", 1, 3, 2, 3, 3.0),
    Sketcher.Constraint("DistanceY", 5, 3, 3, 3, 3.0),
    Sketcher.Constraint("DistanceY", 6, 3, 8, 3, 3.0),
    Sketcher.Constraint("DistanceY", 9, 3, 10, 3, 3.0),
    Sketcher.Constraint("DistanceY", 10, 3, 11, 3, 3.0),
    Sketcher.Constraint("DistanceY", 21, 3, 20, 3, 3.0),
    Sketcher.Constraint("DistanceY", 22, 3, 21, 3, 3.0),
    Sketcher.Constraint("DistanceX", 23, 3, 24, 3, 3.0),
    Sketcher.Constraint("DistanceX", 24, 3, 25, 3, 3.0),
    Sketcher.Constraint("DistanceX", 30, 3, 29, 3, 3.0),
    Sketcher.Constraint("DistanceX", 31, 3, 30, 3, 3.0),
    Sketcher.Constraint("DistanceY", 4, 3, 3, 3, 1.5),
    Sketcher.Constraint("DistanceY", 6, 3, 7, 3, 1.5),
    Sketcher.Constraint("DistanceX", 14, 3, -1, 1, 41.735798),
    Sketcher.Constraint("DistanceY", 2, 3, 6, 3, 11.250699),
    Sketcher.Constraint("DistanceY", 3, 3, 9, 3, 11.250699),
    Sketcher.Constraint("DistanceX", 0, 3, -1, 1, 30.044051),
    Sketcher.Constraint("DistanceY", 0, 3, -1, 1, 13.522239),
    Sketcher.Constraint("DistanceX", 4, 3, -1, 1, 20.95038),
    Sketcher.Constraint("DistanceX", 13, 3, -1, 1, 39.137722),
    Sketcher.Constraint("DistanceX", 12, 3, 6, 3, 12.991189),
    Sketcher.Constraint("DistanceY", 20, 3, 5, 3, 0.728461),
    Sketcher.Constraint("DistanceX", 3, 3, -1, 1, 23.548457),
    Sketcher.Constraint("DistanceY", 3, 3, -1, 1, 3.772006),
    Sketcher.Constraint("DistanceX", 5, 3, -1, 1, 18.352304),
    Sketcher.Constraint("DistanceY", 18, 3, -1, 1, 0.021773),
    Sketcher.Constraint("DistanceX", -1, 1, 23, 3, 16.499533),
    Sketcher.Constraint("DistanceX", -1, 1, 29, 3, 43.500466),
])
sketch3.setExpression("Constraints[60]", "Params.sketch3_diameter")
sketch3.setExpression("Constraints[61]", "Params.sketch3_diameter2")
sketch3.setExpression("Constraints[62]", "Params.sketch3_diameter3")
pocket2 = body.newObject("PartDesign::Pocket", "Pocket001")
pocket2.Profile = sketch3
pocket2.Type = "ThroughAll"
pocket2.Midplane = True

doc.recompute()
